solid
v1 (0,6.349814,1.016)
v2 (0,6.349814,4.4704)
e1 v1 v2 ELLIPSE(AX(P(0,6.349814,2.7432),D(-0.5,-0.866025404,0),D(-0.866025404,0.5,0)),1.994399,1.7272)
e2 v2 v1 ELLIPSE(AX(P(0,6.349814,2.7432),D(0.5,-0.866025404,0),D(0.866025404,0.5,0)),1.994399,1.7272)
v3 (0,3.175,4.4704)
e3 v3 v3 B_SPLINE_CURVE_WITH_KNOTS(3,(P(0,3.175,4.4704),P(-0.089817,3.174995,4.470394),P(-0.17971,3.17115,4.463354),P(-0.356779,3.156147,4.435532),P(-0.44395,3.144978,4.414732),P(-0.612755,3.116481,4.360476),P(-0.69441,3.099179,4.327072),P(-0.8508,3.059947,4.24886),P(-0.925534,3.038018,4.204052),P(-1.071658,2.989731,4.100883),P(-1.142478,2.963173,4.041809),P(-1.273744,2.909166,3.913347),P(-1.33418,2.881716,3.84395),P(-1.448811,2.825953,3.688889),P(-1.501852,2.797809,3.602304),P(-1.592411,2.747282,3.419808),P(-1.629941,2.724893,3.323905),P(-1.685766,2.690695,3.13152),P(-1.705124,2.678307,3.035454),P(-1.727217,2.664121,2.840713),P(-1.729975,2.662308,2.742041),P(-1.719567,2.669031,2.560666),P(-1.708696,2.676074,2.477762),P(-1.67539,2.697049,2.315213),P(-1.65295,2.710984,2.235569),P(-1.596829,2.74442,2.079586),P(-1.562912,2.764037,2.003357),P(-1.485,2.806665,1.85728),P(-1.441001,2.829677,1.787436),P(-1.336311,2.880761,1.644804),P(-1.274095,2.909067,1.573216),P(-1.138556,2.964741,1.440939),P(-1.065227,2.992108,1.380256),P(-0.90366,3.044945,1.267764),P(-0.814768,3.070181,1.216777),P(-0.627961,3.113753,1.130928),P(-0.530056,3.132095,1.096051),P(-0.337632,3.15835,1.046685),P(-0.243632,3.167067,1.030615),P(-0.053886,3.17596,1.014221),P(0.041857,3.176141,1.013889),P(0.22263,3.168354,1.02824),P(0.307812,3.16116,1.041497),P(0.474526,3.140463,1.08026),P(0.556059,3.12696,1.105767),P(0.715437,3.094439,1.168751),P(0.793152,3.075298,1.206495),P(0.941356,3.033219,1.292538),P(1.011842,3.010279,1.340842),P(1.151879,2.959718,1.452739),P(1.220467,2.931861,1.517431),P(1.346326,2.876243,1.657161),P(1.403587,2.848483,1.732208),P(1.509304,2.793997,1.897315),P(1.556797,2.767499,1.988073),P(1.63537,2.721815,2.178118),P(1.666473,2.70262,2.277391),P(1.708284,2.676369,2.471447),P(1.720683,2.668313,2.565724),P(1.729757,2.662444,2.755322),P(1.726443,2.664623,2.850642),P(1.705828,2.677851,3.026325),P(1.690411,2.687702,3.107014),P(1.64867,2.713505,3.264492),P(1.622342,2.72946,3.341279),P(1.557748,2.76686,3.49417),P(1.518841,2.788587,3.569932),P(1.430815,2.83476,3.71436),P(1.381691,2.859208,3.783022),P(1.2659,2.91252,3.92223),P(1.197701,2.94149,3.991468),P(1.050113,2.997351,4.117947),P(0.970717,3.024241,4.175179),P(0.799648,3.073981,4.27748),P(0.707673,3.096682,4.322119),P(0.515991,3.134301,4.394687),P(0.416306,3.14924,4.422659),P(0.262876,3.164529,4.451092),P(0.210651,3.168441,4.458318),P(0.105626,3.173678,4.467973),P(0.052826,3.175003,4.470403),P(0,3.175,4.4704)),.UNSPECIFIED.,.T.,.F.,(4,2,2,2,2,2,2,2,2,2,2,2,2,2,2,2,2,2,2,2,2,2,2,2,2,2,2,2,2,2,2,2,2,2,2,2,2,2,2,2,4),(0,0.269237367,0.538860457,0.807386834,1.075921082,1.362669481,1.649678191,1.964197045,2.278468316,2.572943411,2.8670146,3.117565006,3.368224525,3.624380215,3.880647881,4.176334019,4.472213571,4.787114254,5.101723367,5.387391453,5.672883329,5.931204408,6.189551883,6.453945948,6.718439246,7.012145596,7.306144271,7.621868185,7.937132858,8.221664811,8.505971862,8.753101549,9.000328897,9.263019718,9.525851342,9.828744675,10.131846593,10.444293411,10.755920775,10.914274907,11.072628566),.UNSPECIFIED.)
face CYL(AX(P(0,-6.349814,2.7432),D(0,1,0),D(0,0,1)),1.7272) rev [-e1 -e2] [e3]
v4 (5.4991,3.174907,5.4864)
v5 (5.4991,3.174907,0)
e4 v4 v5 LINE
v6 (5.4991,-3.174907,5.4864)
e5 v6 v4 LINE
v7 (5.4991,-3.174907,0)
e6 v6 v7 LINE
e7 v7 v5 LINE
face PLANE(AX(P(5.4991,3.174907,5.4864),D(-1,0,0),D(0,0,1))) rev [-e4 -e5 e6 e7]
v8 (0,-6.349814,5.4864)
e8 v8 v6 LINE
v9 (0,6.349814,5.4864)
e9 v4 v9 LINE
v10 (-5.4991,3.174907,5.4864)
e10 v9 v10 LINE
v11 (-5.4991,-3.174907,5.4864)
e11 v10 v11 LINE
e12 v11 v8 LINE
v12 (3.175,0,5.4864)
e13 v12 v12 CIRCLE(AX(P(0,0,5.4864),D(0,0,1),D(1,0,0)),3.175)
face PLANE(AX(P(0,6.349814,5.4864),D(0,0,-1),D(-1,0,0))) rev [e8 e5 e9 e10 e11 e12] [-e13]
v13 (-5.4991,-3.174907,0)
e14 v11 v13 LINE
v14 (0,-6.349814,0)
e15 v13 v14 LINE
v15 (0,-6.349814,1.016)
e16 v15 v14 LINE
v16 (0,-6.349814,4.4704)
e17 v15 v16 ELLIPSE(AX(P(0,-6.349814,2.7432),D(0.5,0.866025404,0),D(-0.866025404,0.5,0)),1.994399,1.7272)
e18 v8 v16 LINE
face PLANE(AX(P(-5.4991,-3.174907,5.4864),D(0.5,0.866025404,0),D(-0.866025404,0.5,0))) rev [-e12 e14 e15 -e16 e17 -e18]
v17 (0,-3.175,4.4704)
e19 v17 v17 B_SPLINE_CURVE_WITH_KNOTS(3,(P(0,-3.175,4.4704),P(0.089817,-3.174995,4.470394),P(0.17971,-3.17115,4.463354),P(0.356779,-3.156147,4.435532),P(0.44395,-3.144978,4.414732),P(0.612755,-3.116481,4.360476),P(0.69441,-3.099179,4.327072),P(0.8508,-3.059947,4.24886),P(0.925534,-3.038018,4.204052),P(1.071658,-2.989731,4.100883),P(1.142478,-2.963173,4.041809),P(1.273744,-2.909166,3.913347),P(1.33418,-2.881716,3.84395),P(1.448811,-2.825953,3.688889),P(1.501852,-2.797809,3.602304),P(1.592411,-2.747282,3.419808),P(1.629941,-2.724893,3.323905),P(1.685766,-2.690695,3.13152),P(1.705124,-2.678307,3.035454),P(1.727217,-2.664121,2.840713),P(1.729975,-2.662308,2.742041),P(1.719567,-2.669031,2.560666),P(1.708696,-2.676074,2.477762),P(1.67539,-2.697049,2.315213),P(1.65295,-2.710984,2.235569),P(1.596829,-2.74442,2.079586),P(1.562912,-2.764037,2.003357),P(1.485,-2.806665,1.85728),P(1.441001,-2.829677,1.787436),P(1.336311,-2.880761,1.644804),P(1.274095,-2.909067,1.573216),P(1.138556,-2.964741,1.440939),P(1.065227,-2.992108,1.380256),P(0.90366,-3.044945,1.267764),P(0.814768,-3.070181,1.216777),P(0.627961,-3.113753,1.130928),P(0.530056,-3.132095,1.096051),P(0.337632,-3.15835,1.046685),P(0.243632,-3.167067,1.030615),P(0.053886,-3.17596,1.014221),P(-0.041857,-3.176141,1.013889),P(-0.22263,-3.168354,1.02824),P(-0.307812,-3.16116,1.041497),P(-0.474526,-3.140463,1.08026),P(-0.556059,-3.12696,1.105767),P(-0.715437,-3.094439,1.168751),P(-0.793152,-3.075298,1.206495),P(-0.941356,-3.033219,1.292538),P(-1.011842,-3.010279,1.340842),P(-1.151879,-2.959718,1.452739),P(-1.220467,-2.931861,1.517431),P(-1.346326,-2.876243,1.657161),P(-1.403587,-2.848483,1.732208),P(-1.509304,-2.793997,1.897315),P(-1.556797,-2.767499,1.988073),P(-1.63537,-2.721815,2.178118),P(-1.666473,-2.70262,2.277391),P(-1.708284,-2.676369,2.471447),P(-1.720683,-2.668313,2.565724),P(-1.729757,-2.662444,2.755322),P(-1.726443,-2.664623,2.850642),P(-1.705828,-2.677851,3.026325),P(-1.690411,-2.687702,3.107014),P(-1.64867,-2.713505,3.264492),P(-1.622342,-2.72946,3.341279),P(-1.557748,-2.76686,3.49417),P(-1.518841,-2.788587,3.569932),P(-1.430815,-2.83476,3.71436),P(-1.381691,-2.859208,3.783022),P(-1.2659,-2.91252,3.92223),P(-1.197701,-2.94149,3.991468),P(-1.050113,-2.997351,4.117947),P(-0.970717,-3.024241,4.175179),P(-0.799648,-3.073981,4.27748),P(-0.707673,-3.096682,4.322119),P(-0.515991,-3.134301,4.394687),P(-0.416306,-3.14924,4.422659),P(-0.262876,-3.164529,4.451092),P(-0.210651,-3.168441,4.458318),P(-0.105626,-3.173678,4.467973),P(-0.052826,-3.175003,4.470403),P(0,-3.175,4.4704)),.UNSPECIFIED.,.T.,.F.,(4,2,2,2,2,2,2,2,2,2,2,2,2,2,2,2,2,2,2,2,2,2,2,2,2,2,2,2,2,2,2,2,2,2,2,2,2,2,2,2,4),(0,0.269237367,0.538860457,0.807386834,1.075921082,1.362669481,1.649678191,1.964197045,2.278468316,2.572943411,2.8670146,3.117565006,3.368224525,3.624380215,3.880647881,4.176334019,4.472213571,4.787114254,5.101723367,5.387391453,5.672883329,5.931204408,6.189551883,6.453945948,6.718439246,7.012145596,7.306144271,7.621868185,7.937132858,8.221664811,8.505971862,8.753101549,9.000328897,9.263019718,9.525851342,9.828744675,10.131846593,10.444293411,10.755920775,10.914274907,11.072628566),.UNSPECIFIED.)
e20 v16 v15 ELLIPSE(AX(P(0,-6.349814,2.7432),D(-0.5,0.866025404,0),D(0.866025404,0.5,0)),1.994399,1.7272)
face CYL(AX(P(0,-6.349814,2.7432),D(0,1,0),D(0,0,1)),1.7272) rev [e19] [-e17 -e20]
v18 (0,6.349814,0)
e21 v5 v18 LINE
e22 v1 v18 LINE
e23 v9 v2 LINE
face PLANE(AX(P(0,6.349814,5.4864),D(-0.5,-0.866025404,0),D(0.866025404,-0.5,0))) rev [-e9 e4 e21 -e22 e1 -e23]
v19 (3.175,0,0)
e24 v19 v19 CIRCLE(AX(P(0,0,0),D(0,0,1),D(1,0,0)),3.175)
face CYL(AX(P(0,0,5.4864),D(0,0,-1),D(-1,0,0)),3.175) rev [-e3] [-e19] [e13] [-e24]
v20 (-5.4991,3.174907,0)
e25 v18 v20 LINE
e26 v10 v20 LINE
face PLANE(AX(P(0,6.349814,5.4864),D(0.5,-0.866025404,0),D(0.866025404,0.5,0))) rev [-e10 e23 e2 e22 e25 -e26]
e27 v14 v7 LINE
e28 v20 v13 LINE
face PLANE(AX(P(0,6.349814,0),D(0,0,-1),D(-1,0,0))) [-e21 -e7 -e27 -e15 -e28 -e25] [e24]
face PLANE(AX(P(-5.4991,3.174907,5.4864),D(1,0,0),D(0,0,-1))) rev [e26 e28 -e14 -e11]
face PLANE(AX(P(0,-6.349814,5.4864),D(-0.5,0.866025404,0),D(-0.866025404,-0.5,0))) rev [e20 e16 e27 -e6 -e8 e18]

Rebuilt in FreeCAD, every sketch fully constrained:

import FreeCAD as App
import Part
import Sketcher

V = App.Vector
Q = App.Units.Quantity

doc = App.newDocument("Part")
params = doc.addObject("Spreadsheet::Sheet", "Params")
for row, (alias, value) in enumerate([
    ("sketch1_diameter", "0.25 in"),
    ("pad1_length", "0.216 in"),
    ("sketch2_diameter", "0.136 in"),
    ("pocket1_length", "12.699628 mm"),
], start=1):
    params.set(f"A{row}", alias)
    params.set(f"B{row}", "=" + value)
    params.setAlias(f"B{row}", alias)

body = doc.addObject("PartDesign::Body", "Body")

# Sketch on XY plane
sketch1 = doc.addObject("Sketcher::SketchObject", "Sketch")
body.addObject(sketch1)
sketch1.AttachmentSupport = (doc.XY_Plane, [""])
sketch1.MapMode = "FlatFace"
sketch1.addGeometry(Part.LineSegment(V(0, 6.3, 0), V(-5.5, 3.2, 0)), False)
sketch1.addGeometry(Part.LineSegment(V(-5.5, 3.2, 0), V(-5.5, -3.2, 0)), False)
sketch1.addGeometry(Part.LineSegment(V(-5.5, -3.2, 0), V(0, -6.3, 0)), False)
sketch1.addGeometry(Part.LineSegment(V(0, -6.3, 0), V(5.5, -3.2, 0)), False)
sketch1.addGeometry(Part.LineSegment(V(5.5, -3.2, 0), V(5.5, 3.2, 0)), False)
sketch1.addGeometry(Part.LineSegment(V(5.5, 3.2, 0), V(0, 6.3, 0)), False)
sketch1.addGeometry(Part.Circle(V(0, 0, 0), V(0, 0, 1), 3.2), False)
sketch1.addConstraint(Sketcher.Constraint("Coincident", 0, 2, 1, 1))
sketch1.addConstraint(Sketcher.Constraint("Coincident", 1, 2, 2, 1))
sketch1.addConstraint(Sketcher.Constraint("Coincident", 2, 2, 3, 1))
sketch1.addConstraint(Sketcher.Constraint("Coincident", 3, 2, 4, 1))
sketch1.addConstraint(Sketcher.Constraint("Coincident", 4, 2, 5, 1))
sketch1.addConstraint(Sketcher.Constraint("Coincident", 5, 2, 0, 1))
sketch1.addConstraint(Sketcher.Constraint("Vertical", 1))
sketch1.addConstraint(Sketcher.Constraint("Vertical", 4))
sketch1.addConstraint(Sketcher.Constraint("Coincident", 6, 3, -1, 1))
sketch1.addConstraint(Sketcher.Constraint("Symmetric", 0, 2, 3, 2, -1, 1))
sketch1.addConstraint(Sketcher.Constraint("Symmetric", 2, 2, 5, 2, -1, 1))
sketch1.addConstraint(Sketcher.Constraint("PointOnObject", 2, 2, -2))
sketch1.addConstraint(Sketcher.Constraint("Parallel", 2, 5))
sketch1.addConstraint(Sketcher.Constraint("Horizontal", 1, 2, 3, 2))
sketch1.addConstraint(Sketcher.Constraint("Diameter", 6, Q("0.25 in")))
sketch1.addConstraint(Sketcher.Constraint("Angle", 0, Q("-150 deg")))
sketch1.addConstraint(Sketcher.Constraint("DistanceX", 1, 2, 3, 2, Q("0.433 in")))
sketch1.addConstraint(Sketcher.Constraint("DistanceY", 1, 2, 1, 1, Q("6.349814 mm")))
sketch1.setExpression("Constraints[14]", "Params.sketch1_diameter")
pad1 = doc.addObject("PartDesign::Pad", "Pad")
body.addObject(pad1)
pad1.Profile = sketch1
pad1.setExpression("Length", "Params.pad1_length")

# Sketch on XZ plane
sketch2 = doc.addObject("Sketcher::SketchObject", "Sketch001")
body.addObject(sketch2)
sketch2.AttachmentSupport = (doc.XZ_Plane, [""])
sketch2.MapMode = "FlatFace"
sketch2.AttachmentOffset = App.Placement(V(0, 0, 6.349814), App.Rotation())
sketch2.addGeometry(Part.Circle(V(0, 2.7, 0), V(0, 0, 1), 1.7), False)
sketch2.addConstraint(Sketcher.Constraint("PointOnObject", 0, 3, -2))
sketch2.addConstraint(Sketcher.Constraint("Diameter", 0, Q("0.136 in")))
sketch2.addConstraint(Sketcher.Constraint("DistanceY", -1, 1, 0, 3, Q("0.108 in")))
sketch2.setExpression("Constraints[1]", "Params.sketch2_diameter")
pocket1 = doc.addObject("PartDesign::Pocket", "Pocket")
body.addObject(pocket1)
pocket1.Profile = sketch2
pocket1.setExpression("Length", "Params.pocket1_length")

doc.recompute()
